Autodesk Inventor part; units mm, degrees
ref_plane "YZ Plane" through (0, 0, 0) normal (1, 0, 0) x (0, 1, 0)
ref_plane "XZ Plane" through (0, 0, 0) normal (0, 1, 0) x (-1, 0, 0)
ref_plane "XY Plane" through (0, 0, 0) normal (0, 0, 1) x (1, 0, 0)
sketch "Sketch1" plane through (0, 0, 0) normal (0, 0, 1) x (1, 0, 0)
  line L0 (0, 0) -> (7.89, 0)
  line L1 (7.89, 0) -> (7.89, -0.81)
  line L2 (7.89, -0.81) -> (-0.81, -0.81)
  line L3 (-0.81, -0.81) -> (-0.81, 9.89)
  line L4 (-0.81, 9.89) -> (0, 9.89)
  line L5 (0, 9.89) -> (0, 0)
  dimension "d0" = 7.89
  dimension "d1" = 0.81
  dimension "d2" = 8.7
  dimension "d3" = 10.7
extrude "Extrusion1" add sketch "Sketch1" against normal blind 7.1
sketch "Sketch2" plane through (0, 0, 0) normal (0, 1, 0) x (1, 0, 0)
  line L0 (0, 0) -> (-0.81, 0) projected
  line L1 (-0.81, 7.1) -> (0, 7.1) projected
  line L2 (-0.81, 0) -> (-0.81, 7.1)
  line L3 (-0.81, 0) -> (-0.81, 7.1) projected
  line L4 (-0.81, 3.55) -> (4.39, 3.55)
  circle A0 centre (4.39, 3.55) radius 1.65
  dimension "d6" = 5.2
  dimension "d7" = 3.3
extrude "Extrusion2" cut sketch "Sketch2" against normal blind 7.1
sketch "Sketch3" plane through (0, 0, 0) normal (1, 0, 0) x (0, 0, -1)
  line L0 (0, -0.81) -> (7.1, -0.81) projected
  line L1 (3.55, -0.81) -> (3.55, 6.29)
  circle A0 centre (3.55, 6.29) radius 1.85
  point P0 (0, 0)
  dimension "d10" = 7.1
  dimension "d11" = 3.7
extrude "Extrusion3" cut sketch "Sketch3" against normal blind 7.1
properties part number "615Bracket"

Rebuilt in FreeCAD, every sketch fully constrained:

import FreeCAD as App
import Part
import Sketcher


def add_polygon(sketch, points):
    """Adds a closed chain of lines whose ends are joined by coincident constraints."""
    first, n = sketch.GeometryCount, len(points)
    for a, b in zip(points, points[1:] + points[:1]):
        sketch.addGeometry(Part.LineSegment(App.Vector(*a, 0), App.Vector(*b, 0)), False)
    for i in range(n):
        sketch.addConstraint(Sketcher.Constraint("Coincident", first + i, 2, first + (i + 1) % n, 1))

doc = App.newDocument("Part")
body = doc.addObject("PartDesign::Body", "Body")

# Sketch on XY plane
sketch1 = body.newObject("Sketcher::SketchObject", "Sketch")
sketch1.AttachmentSupport = (doc.getObject("XY_Plane"), [""])
sketch1.MapMode = "FlatFace"
add_polygon(sketch1, [(7.9, 0), (0, 0), (0, 9.9), (-0.8, 9.9), (-0.8, -0.8), (7.9, -0.8)])  # lines 0-5
sketch1.addConstraint([
    Sketcher.Constraint("Horizontal", 0),
    Sketcher.Constraint("Vertical", 1),
    Sketcher.Constraint("Horizontal", 2),
    Sketcher.Constraint("Vertical", 3),
    Sketcher.Constraint("Horizontal", 4),
    Sketcher.Constraint("Vertical", 5),
    Sketcher.Constraint("Coincident", 0, 2, -1, 1),
    Sketcher.Constraint("Equal", 2, 5),
    Sketcher.Constraint("DistanceX", 4, 1, 4, 2, 8.7),
    Sketcher.Constraint("DistanceY", 3, 2, 3, 1, 10.7),
    Sketcher.Constraint("DistanceX", 0, 2, 0, 1, 7.89),
])
pad1 = body.newObject("PartDesign::Pad", "Pad")
pad1.Profile = sketch1
pad1.Length = 7.1
pad1.Reversed = True

# Sketch on XZ plane
sketch2 = body.newObject("Sketcher::SketchObject", "Sketch001")
sketch2.AttachmentSupport = (doc.getObject("XZ_Plane"), [""])
sketch2.MapMode = "FlatFace"
sketch2.addGeometry(Part.Circle(App.Vector(4.4, -3.5, 0), App.Vector(0, 0, 1), 1.6), False)
sketch2.addConstraint([
    Sketcher.Constraint("Diameter", 0, 3.3),
    Sketcher.Constraint("DistanceX", -1, 1, 0, 3, 4.39),
    Sketcher.Constraint("DistanceY", 0, 3, -1, 1, 3.55),
])
pocket1 = body.newObject("PartDesign::Pocket", "Pocket")
pocket1.Profile = sketch2
pocket1.Length = 7.1
pocket1.Reversed = True

# Sketch on YZ plane
sketch3 = body.newObject("Sketcher::SketchObject", "Sketch002")
sketch3.AttachmentSupport = (doc.getObject("YZ_Plane"), [""])
sketch3.MapMode = "FlatFace"
sketch3.addGeometry(Part.Circle(App.Vector(6.3, -3.5, 0), App.Vector(0, 0, 1), 1.9), False)
sketch3.addConstraint([
    Sketcher.Constraint("Diameter", 0, 3.7),
    Sketcher.Constraint("DistanceX", -1, 1, 0, 3, 6.29),
    Sketcher.Constraint("DistanceY", 0, 3, -1, 1, 3.55),
])
pocket2 = body.newObject("PartDesign::Pocket", "Pocket001")
pocket2.Profile = sketch3
pocket2.Length = 7.1

doc.recompute()
